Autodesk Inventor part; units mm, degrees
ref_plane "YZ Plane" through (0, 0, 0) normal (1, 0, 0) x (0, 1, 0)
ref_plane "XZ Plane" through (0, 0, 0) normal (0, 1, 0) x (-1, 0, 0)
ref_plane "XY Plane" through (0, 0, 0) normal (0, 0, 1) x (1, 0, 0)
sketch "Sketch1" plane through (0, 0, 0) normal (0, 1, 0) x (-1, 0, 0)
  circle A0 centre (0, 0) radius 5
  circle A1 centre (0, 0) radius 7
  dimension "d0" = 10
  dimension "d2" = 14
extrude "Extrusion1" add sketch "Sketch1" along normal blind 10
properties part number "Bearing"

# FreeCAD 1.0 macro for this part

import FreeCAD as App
import Part
import Sketcher
from FreeCAD import Vector

doc = App.newDocument("Part")
body = doc.addObject("PartDesign::Body", "Body")

# Sketch on XZ plane
sketch1 = body.newObject("Sketcher::SketchObject", "Sketch")
sketch1.AttachmentSupport = (doc.getObject("XZ_Plane"), [""])
sketch1.MapMode = "FlatFace"
sketch1.addGeometry(Part.Circle(Vector(0, 0, 0), Vector(0, 0, 1), 7), False)
sketch1.addGeometry(Part.Circle(Vector(0, 0, 0), Vector(0, 0, 1), 5), False)
sketch1.addConstraint(Sketcher.Constraint("Coincident", 0, 3, -1, 1))
sketch1.addConstraint(Sketcher.Constraint("Coincident", 1, 3, -1, 1))
sketch1.addConstraint(Sketcher.Constraint("Diameter", 0, 14.0))
sketch1.addConstraint(Sketcher.Constraint("Diameter", 1, 10.0))
pad1 = body.newObject("PartDesign::Pad", "Pad")
pad1.Profile = sketch1
pad1.Length = 10
pad1.Reversed = True

doc.recompute()
